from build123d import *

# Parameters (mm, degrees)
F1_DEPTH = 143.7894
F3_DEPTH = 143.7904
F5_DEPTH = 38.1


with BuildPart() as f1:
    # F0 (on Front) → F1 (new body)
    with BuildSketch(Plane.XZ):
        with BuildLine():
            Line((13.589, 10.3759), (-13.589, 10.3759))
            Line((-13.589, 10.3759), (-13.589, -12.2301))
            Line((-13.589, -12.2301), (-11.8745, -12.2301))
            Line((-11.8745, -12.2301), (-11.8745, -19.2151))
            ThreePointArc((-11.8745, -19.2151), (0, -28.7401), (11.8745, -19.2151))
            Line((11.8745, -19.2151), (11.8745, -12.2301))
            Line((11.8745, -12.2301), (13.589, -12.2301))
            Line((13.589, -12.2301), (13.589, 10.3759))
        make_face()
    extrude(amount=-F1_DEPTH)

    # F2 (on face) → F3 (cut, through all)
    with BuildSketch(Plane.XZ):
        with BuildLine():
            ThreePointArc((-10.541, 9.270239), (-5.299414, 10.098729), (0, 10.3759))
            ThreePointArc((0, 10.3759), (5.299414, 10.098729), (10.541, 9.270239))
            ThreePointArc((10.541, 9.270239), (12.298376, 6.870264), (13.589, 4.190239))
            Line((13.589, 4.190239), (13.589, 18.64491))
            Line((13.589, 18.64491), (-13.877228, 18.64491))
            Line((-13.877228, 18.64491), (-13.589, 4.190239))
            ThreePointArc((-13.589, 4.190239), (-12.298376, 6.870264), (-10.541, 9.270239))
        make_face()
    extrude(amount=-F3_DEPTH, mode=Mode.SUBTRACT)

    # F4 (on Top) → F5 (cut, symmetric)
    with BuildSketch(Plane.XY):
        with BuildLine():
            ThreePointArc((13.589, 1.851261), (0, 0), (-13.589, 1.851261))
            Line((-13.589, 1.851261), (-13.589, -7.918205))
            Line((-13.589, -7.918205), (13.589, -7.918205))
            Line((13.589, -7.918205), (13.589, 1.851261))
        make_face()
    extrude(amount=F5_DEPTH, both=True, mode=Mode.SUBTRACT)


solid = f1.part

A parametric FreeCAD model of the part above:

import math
import FreeCAD as App
import Part
import Sketcher
Q = App.Units.Quantity

doc = App.newDocument("Part")
body = doc.addObject("PartDesign::Body", "Body")

sketch1 = doc.addObject("Sketcher::SketchObject", "Sketch")
body.addObject(sketch1)
sketch1.AttachmentSupport = (doc.XZ_Plane, [""])
sketch1.MapMode = "FlatFace"
sketch1.addGeometry(Part.LineSegment(App.Vector(13.589, 10.3759, 0), App.Vector(-13.589, 10.3759, 0)), False)
sketch1.addGeometry(Part.LineSegment(App.Vector(-13.589, 10.3759, 0), App.Vector(-13.589, -12.2301, 0)), False)
sketch1.addGeometry(Part.LineSegment(App.Vector(-13.589, -12.2301, 0), App.Vector(-11.8745, -12.2301, 0)), False)
sketch1.addGeometry(Part.LineSegment(App.Vector(-11.8745, -12.2301, 0), App.Vector(-11.8745, -19.2151, 0)), False)
sketch1.addGeometry(Part.ArcOfCircle(Part.Circle(App.Vector(0, -16.575828, 0), App.Vector(0, 0, 1), 12.164272), math.radians(-167.468921), math.radians(-12.531079)), False)
sketch1.addGeometry(Part.LineSegment(App.Vector(11.8745, -19.2151, 0), App.Vector(11.8745, -12.2301, 0)), False)
sketch1.addGeometry(Part.LineSegment(App.Vector(11.8745, -12.2301, 0), App.Vector(13.589, -12.2301, 0)), False)
sketch1.addGeometry(Part.LineSegment(App.Vector(13.589, -12.2301, 0), App.Vector(13.589, 10.3759, 0)), False)
sketch1.addConstraint(Sketcher.Constraint("Coincident", 0, 2, 1, 1))
sketch1.addConstraint(Sketcher.Constraint("Coincident", 1, 2, 2, 1))
sketch1.addConstraint(Sketcher.Constraint("Coincident", 2, 2, 3, 1))
sketch1.addConstraint(Sketcher.Constraint("Coincident", 3, 2, 4, 1))
sketch1.addConstraint(Sketcher.Constraint("Coincident", 4, 2, 5, 1))
sketch1.addConstraint(Sketcher.Constraint("Coincident", 5, 2, 6, 1))
sketch1.addConstraint(Sketcher.Constraint("Coincident", 6, 2, 7, 1))
sketch1.addConstraint(Sketcher.Constraint("Coincident", 7, 2, 0, 1))
sketch1.addConstraint(Sketcher.Constraint("Horizontal", 0))
sketch1.addConstraint(Sketcher.Constraint("Vertical", 1))
sketch1.addConstraint(Sketcher.Constraint("Horizontal", 2))
sketch1.addConstraint(Sketcher.Constraint("Vertical", 3))
sketch1.addConstraint(Sketcher.Constraint("Vertical", 5))
sketch1.addConstraint(Sketcher.Constraint("Horizontal", 6))
sketch1.addConstraint(Sketcher.Constraint("Vertical", 7))
sketch1.addConstraint(Sketcher.Constraint("Symmetric", 3, 2, 4, 2, -2))
sketch1.addConstraint(Sketcher.Constraint("Symmetric", 1, 2, 6, 2, -2))
sketch1.addConstraint(Sketcher.Constraint("DistanceX", 0, 2, 0, 1, Q("1.07 in")))
sketch1.addConstraint(Sketcher.Constraint("DistanceY", 1, 2, 1, 1, Q("0.89 in")))
sketch1.addConstraint(Sketcher.Constraint("DistanceY", 3, 2, 3, 1, Q("0.275 in")))
sketch1.addConstraint(Sketcher.Constraint("DistanceX", 2, 1, 2, 2, Q("0.0675 in")))
sketch1.addConstraint(Sketcher.Constraint("Radius", 4, Q("12.164272 mm")))
sketch1.addConstraint(Sketcher.Constraint("DistanceY", -1, 1, 0, 2, Q("0.4085 in")))
pad1 = doc.addObject("PartDesign::Pad", "Pad")
body.addObject(pad1)
pad1.Profile = sketch1
pad1.Length = Q("5.661 in")
pad1.Reversed = True

sketch2 = doc.addObject("Sketcher::SketchObject", "Sketch001")
body.addObject(sketch2)
sketch2.AttachmentSupport = (doc.XZ_Plane, [""])
sketch2.MapMode = "FlatFace"
sketch2.addGeometry(Part.ArcOfCircle(Part.Circle(App.Vector(-0.000007, -40.424039, 0), App.Vector(0, 0, 1), 50.799939), math.radians(89.999992), math.radians(101.975893)), False)
sketch2.addGeometry(Part.ArcOfCircle(Part.Circle(App.Vector(0.000007, -40.424039, 0), App.Vector(0, 0, 1), 50.799939), math.radians(78.024107), math.radians(90.000008)), False)
sketch2.addGeometry(Part.ArcOfCircle(Part.Circle(App.Vector(-1.640657, -1.493155, 0), App.Vector(0, 0, 1), 16.255566), math.radians(20.464538), math.radians(41.462975)), False)
sketch2.addGeometry(Part.LineSegment(App.Vector(13.589, 4.190239, 0), App.Vector(13.589, 18.64491, 0)), False)
sketch2.addGeometry(Part.LineSegment(App.Vector(13.589, 18.64491, 0), App.Vector(-13.877228, 18.64491, 0)), False)
sketch2.addGeometry(Part.LineSegment(App.Vector(-13.877228, 18.64491, 0), App.Vector(-13.589, 4.190239, 0)), False)
sketch2.addGeometry(Part.ArcOfCircle(Part.Circle(App.Vector(1.640657, -1.493155, 0), App.Vector(0, 0, 1), 16.255566), math.radians(138.537025), math.radians(159.535462)), False)
sketch2.addConstraint(Sketcher.Constraint("Tangent", 0, 1, 1, 2))
sketch2.addConstraint(Sketcher.Constraint("Coincident", 1, 1, 2, 2))
sketch2.addConstraint(Sketcher.Constraint("Coincident", 2, 1, 3, 1))
sketch2.addConstraint(Sketcher.Constraint("Coincident", 3, 2, 4, 1))
sketch2.addConstraint(Sketcher.Constraint("Coincident", 4, 2, 5, 1))
sketch2.addConstraint(Sketcher.Constraint("Coincident", 5, 2, 6, 2))
sketch2.addConstraint(Sketcher.Constraint("Coincident", 6, 1, 0, 2))
sketch2.addConstraint(Sketcher.Constraint("Vertical", 3))
sketch2.addConstraint(Sketcher.Constraint("Horizontal", 4))
sketch2.addConstraint(Sketcher.Constraint("Equal", 0, 1))
sketch2.addConstraint(Sketcher.Constraint("Equal", 2, 6))
sketch2.addConstraint(Sketcher.Constraint("Symmetric", 2, 3, 6, 3, -2))
sketch2.addConstraint(Sketcher.Constraint("PointOnObject", 0, 1, -2))
sketch2.addConstraint(Sketcher.Constraint("Horizontal", 2, 1, 5, 2))
sketch2.addConstraint(Sketcher.Constraint("Horizontal", 1, 1, 6, 1))
sketch2.addConstraint(Sketcher.Constraint("DistanceY", 2, 1, 1, 1, Q("0.2 in")))
sketch2.addConstraint(Sketcher.Constraint("DistanceX", 1, 1, 2, 1, Q("0.12 in")))
sketch2.addConstraint(Sketcher.Constraint("DistanceX", 5, 2, 1, 1, Q("0.95 in")))
sketch2.addConstraint(Sketcher.Constraint("Radius", 0, Q("50.799939 mm")))
sketch2.addConstraint(Sketcher.Constraint("DistanceY", -1, 1, 0, 1, Q("0.4085 in")))
sketch2.addConstraint(Sketcher.Constraint("Radius", 2, Q("16.255566 mm")))
sketch2.addConstraint(Sketcher.Constraint("DistanceX", 4, 2, 4, 1, Q("27.466228 mm")))
sketch2.addConstraint(Sketcher.Constraint("DistanceY", 3, 1, 3, 2, Q("14.454671 mm")))
pocket1 = doc.addObject("PartDesign::Pocket", "Pocket")
body.addObject(pocket1)
pocket1.Profile = sketch2
pocket1.Type = "ThroughAll"

sketch3 = doc.addObject("Sketcher::SketchObject", "Sketch002")
body.addObject(sketch3)
sketch3.AttachmentSupport = (doc.XY_Plane, [""])
sketch3.MapMode = "FlatFace"
sketch3.addGeometry(Part.ArcOfCircle(Part.Circle(App.Vector(0, 50.799992, 0), App.Vector(0, 0, 1), 50.799992), math.radians(-105.515559), math.radians(-74.484441)), False)
sketch3.addGeometry(Part.LineSegment(App.Vector(-13.589, 1.851261, 0), App.Vector(-13.589, -7.918205, 0)), False)
sketch3.addGeometry(Part.LineSegment(App.Vector(-13.589, -7.918205, 0), App.Vector(13.589, -7.918205, 0)), False)
sketch3.addGeometry(Part.LineSegment(App.Vector(13.589, -7.918205, 0), App.Vector(13.589, 1.851261, 0)), False)
sketch3.addConstraint(Sketcher.Constraint("Coincident", 0, 1, 1, 1))
sketch3.addConstraint(Sketcher.Constraint("Coincident", 1, 2, 2, 1))
sketch3.addConstraint(Sketcher.Constraint("Coincident", 2, 2, 3, 1))
sketch3.addConstraint(Sketcher.Constraint("Coincident", 3, 2, 0, 2))
sketch3.addConstraint(Sketcher.Constraint("Vertical", 1))
sketch3.addConstraint(Sketcher.Constraint("Horizontal", 2))
sketch3.addConstraint(Sketcher.Constraint("Vertical", 3))
sketch3.addConstraint(Sketcher.Constraint("Symmetric", 0, 1, 3, 2, -2))
sketch3.addConstraint(Sketcher.Constraint("DistanceX", 2, 1, 2, 2, Q("1.07 in")))
sketch3.addConstraint(Sketcher.Constraint("Radius", 0, Q("50.799992 mm")))
sketch3.addConstraint(Sketcher.Constraint("DistanceY", 1, 2, 1, 1, Q("9.769466 mm")))
sketch3.addConstraint(Sketcher.Constraint("DistanceY", -1, 1, 0, 1, Q("1.851261 mm")))
pocket2 = doc.addObject("PartDesign::Pocket", "Pocket001")
body.addObject(pocket2)
pocket2.Profile = sketch3
pocket2.Length = Q("3 in")
pocket2.Midplane = True

doc.recompute()
